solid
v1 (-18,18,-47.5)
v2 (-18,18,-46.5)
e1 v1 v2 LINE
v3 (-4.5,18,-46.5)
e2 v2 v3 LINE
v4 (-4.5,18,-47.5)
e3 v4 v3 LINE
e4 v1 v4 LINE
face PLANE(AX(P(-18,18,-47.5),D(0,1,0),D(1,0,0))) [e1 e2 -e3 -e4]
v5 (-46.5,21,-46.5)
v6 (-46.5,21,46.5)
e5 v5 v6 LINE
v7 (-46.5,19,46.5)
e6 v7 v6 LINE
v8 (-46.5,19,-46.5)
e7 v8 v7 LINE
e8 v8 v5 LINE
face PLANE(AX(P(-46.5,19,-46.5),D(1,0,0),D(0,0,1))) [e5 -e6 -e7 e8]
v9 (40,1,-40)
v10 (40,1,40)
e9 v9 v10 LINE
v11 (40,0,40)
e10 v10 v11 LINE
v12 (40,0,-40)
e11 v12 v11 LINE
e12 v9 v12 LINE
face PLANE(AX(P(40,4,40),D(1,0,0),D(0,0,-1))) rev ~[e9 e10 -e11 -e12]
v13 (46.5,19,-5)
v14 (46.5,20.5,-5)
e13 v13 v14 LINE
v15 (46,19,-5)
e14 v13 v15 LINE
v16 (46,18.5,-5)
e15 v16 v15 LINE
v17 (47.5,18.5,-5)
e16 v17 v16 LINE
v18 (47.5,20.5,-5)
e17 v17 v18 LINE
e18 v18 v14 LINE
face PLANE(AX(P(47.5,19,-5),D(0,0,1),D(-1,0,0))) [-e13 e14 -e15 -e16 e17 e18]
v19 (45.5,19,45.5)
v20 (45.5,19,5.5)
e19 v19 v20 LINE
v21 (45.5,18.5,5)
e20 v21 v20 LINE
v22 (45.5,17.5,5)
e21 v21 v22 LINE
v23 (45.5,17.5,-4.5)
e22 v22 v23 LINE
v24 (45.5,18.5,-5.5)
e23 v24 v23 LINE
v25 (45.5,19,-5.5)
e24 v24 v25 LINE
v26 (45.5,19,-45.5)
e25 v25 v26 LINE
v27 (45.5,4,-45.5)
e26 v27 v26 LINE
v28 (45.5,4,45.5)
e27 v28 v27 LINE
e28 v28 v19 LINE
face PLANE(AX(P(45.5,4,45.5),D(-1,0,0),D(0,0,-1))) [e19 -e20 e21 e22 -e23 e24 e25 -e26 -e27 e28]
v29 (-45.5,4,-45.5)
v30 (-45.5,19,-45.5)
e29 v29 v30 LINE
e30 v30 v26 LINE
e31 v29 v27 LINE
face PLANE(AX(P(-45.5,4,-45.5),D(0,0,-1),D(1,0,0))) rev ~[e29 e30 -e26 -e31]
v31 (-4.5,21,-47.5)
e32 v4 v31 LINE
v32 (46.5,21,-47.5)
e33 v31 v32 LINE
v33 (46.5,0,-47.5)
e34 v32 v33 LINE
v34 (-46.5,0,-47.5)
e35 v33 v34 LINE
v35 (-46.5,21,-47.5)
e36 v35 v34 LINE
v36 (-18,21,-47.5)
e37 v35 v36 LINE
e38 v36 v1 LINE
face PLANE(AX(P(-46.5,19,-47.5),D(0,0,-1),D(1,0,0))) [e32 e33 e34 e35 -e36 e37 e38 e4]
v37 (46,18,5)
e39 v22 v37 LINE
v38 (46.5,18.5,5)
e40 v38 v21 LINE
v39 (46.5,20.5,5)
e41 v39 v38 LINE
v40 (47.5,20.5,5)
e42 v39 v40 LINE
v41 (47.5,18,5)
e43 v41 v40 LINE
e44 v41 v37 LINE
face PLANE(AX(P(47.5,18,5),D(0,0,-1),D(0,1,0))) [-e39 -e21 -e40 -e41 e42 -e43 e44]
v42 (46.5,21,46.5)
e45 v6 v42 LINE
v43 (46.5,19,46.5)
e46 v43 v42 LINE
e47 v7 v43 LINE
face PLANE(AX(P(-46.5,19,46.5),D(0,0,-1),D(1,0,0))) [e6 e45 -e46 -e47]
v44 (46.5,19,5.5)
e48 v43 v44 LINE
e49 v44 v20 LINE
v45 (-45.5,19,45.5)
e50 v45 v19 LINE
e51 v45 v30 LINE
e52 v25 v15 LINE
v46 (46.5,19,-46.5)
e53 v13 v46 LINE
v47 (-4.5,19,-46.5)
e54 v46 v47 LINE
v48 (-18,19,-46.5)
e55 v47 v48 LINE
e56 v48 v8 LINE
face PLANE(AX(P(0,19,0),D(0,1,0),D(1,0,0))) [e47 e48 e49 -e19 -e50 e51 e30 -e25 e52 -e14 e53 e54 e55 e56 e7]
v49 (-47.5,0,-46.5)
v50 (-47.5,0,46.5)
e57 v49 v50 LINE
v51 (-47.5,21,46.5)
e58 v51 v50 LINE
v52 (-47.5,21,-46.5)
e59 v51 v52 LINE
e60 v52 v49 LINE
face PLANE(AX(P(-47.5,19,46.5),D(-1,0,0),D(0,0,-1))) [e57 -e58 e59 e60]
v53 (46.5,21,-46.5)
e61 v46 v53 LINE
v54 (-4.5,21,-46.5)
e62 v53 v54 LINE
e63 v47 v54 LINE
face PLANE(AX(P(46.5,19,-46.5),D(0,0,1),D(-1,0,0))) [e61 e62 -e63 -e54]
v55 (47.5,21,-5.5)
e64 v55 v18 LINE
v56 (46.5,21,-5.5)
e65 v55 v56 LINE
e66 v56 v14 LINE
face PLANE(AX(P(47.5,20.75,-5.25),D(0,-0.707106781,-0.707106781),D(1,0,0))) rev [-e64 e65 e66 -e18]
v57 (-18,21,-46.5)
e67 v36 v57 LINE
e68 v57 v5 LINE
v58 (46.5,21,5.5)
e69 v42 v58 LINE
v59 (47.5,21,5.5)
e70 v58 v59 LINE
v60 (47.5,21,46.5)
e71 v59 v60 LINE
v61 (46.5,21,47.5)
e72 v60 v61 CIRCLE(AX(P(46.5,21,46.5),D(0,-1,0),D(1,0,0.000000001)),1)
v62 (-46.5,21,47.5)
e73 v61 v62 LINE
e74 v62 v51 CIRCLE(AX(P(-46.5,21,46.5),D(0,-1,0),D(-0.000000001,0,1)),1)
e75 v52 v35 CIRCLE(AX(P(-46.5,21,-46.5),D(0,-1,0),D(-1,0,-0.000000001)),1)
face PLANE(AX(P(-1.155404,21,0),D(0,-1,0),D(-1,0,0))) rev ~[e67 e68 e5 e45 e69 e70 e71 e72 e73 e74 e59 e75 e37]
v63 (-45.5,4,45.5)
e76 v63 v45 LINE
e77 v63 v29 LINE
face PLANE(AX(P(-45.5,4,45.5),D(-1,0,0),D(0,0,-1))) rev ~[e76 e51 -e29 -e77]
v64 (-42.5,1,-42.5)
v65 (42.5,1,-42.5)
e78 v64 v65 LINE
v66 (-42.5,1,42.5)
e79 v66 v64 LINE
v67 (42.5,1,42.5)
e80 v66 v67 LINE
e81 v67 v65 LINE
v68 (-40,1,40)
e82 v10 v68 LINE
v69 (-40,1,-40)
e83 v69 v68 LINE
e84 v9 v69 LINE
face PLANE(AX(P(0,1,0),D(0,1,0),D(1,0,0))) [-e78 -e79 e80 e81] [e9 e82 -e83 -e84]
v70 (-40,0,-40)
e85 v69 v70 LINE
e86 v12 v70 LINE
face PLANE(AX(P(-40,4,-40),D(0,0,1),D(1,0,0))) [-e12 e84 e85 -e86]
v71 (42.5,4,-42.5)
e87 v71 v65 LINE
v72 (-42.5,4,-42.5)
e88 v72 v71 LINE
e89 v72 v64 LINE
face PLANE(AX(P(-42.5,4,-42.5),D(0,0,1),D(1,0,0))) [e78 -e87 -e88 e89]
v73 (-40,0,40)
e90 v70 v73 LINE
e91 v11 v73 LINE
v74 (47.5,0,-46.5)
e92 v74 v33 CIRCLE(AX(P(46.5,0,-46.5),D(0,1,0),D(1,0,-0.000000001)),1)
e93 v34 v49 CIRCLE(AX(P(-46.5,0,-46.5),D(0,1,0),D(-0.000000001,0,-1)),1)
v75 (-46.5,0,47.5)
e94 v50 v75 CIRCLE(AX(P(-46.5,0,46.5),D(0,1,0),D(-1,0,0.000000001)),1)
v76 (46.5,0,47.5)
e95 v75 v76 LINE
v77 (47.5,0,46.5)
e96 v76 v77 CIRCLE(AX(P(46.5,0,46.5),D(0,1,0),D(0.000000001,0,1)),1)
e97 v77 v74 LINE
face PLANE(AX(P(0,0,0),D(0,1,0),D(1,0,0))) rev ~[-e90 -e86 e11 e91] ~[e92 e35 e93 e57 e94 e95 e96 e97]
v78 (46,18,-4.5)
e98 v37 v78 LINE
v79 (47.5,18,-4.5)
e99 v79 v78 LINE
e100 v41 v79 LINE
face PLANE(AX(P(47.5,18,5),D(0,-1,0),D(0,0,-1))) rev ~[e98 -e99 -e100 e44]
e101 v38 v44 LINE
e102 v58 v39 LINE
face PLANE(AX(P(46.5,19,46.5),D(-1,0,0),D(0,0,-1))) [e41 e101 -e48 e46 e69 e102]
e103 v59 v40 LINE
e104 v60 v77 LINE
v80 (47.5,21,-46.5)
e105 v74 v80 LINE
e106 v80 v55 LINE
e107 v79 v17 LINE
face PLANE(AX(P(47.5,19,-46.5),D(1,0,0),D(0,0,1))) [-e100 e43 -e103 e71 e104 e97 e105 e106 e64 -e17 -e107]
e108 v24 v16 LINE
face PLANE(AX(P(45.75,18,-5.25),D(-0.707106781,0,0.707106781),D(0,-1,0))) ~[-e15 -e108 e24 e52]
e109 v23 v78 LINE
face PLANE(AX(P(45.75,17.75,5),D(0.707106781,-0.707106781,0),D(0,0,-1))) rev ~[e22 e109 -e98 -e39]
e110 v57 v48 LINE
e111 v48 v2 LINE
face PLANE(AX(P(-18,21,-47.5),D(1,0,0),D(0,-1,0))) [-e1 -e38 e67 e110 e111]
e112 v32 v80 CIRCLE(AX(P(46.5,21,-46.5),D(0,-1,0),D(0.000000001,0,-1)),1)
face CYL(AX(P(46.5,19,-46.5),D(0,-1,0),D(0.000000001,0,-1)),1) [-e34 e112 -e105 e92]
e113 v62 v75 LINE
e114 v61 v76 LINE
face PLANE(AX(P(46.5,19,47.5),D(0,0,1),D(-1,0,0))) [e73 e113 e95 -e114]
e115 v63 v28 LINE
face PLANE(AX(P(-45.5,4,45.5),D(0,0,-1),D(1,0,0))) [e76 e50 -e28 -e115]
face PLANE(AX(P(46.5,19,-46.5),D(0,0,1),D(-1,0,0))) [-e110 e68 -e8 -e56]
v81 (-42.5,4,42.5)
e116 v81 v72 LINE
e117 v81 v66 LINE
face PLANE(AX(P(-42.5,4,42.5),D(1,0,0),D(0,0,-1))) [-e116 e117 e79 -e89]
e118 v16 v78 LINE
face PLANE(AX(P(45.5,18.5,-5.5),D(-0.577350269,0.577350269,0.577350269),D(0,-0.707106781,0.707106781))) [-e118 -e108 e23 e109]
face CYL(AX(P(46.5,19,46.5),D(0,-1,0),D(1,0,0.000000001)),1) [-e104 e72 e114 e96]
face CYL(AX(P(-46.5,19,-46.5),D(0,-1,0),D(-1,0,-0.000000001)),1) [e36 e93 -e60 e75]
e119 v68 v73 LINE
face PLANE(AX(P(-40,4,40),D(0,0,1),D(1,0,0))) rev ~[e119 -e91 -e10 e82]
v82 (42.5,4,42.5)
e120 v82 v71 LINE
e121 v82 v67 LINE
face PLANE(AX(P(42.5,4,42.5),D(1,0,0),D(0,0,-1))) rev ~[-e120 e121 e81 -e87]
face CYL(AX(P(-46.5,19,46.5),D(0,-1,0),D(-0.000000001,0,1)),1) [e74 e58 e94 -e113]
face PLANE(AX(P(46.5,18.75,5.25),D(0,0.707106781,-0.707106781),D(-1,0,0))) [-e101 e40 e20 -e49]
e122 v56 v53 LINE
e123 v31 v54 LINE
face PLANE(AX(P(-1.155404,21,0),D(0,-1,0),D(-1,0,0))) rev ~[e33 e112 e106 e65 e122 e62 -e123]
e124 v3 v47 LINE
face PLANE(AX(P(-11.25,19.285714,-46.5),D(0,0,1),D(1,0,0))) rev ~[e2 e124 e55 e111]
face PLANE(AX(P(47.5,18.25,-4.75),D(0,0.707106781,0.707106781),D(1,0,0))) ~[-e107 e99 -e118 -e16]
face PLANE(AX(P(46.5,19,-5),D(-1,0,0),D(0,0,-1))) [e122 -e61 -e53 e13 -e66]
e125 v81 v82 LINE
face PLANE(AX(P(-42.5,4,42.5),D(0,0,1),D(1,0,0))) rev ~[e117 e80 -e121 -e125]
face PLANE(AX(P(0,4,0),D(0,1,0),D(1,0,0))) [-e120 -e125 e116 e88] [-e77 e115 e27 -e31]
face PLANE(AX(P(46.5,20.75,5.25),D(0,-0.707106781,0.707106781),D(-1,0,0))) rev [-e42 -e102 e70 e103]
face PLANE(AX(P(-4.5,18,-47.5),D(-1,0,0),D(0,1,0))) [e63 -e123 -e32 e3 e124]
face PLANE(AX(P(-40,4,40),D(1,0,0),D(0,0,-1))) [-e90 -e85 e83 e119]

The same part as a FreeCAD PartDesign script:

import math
import FreeCAD as App
import Part
import Sketcher
from FreeCAD import Vector


def edges_at(feature, points):
    """Names of the edges that pass closest to the given points."""
    edges = feature.Shape.Edges
    near = lambda p: min(range(len(edges)), key=lambda i: edges[i].distToShape(Part.Vertex(*p))[0])
    return sorted({f"Edge{near(p) + 1}" for p in points})

doc = App.newDocument("Part")
params = doc.addObject("Spreadsheet::Sheet", "Params")
for row, (alias, value) in enumerate([
    ("sketch1_radius", "1 mm"),
    ("sketch1_width", "93 mm"),
    ("pad1_length", "4 mm"),
    ("sketch2_radius", "1 mm"),
    ("sketch2_width", "93 mm"),
    ("sketch2_width2", "91 mm"),
    ("pad2_length", "15 mm"),
    ("sketch3_width", "80 mm"),
    ("sketch4_width", "1 mm"),
    ("sketch4_height", "10 mm"),
    ("sketch5_width", "85 mm"),
    ("pocket3_length", "3 mm"),
    ("sketch6_radius", "1 mm"),
    ("sketch6_width", "93 mm"),
    ("sketch6_height", "41.5 mm"),
    ("pad3_length", "2 mm"),
    ("chamfer_size", "0.5 mm"),
    ("sketch7_height", "1 mm"),
    ("sketch7_width", "9.5 mm"),
    ("sketch8_width", "2 mm"),
    ("sketch8_height", "1 mm"),
    ("sketch8_height2", "3 mm"),
    ("sketch8_width2", "9.5 mm"),
    ("pocket5_length", "1 mm"),
], start=1):
    params.set(f"A{row}", alias)
    params.set(f"B{row}", "=" + value)
    params.setAlias(f"B{row}", alias)

body = doc.addObject("PartDesign::Body", "Body")

# Sketch on XZ plane
sketch1 = doc.addObject("Sketcher::SketchObject", "Sketch")
body.addObject(sketch1)
sketch1.AttachmentSupport = (doc.XZ_Plane, [""])
sketch1.MapMode = "FlatFace"
sketch1.addGeometry(Part.LineSegment(Vector(-46.5, 47.5, 0), Vector(46.5, 47.5, 0)), False)
sketch1.addGeometry(Part.ArcOfCircle(Part.Circle(Vector(46.5, 46.5, 0), Vector(0, 0, 1), 1), math.radians(0), math.radians(90)), False)
sketch1.addGeometry(Part.LineSegment(Vector(47.5, 46.5, 0), Vector(47.5, -46.5, 0)), False)
sketch1.addGeometry(Part.ArcOfCircle(Part.Circle(Vector(46.5, -46.5, 0), Vector(0, 0, 1), 1), math.radians(-90), math.radians(0)), False)
sketch1.addGeometry(Part.LineSegment(Vector(46.5, -47.5, 0), Vector(-46.5, -47.5, 0)), False)
sketch1.addGeometry(Part.ArcOfCircle(Part.Circle(Vector(-46.5, -46.5, 0), Vector(0, 0, 1), 1), math.radians(-180), math.radians(-90)), False)
sketch1.addGeometry(Part.LineSegment(Vector(-47.5, -46.5, 0), Vector(-47.5, 46.5, 0)), False)
sketch1.addGeometry(Part.ArcOfCircle(Part.Circle(Vector(-46.5, 46.5, 0), Vector(0, 0, 1), 1), math.radians(90), math.radians(180)), False)
sketch1.addConstraint(Sketcher.Constraint("Tangent", 0, 2, 1, 2))
sketch1.addConstraint(Sketcher.Constraint("Tangent", 1, 1, 2, 1))
sketch1.addConstraint(Sketcher.Constraint("Tangent", 2, 2, 3, 2))
sketch1.addConstraint(Sketcher.Constraint("Tangent", 3, 1, 4, 1))
sketch1.addConstraint(Sketcher.Constraint("Tangent", 4, 2, 5, 2))
sketch1.addConstraint(Sketcher.Constraint("Tangent", 5, 1, 6, 1))
sketch1.addConstraint(Sketcher.Constraint("Tangent", 6, 2, 7, 2))
sketch1.addConstraint(Sketcher.Constraint("Tangent", 7, 1, 0, 1))
sketch1.addConstraint(Sketcher.Constraint("Horizontal", 0))
sketch1.addConstraint(Sketcher.Constraint("Vertical", 2))
sketch1.addConstraint(Sketcher.Constraint("Horizontal", 4))
sketch1.addConstraint(Sketcher.Constraint("Vertical", 6))
sketch1.addConstraint(Sketcher.Constraint("Equal", 1, 3))
sketch1.addConstraint(Sketcher.Constraint("Equal", 3, 5))
sketch1.addConstraint(Sketcher.Constraint("Equal", 5, 7))
sketch1.addConstraint(Sketcher.Constraint("Symmetric", 1, 3, 5, 3, -1, 1))
sketch1.addConstraint(Sketcher.Constraint("Equal", 4, 2))
sketch1.addConstraint(Sketcher.Constraint("Radius", 1, 1.0))
sketch1.addConstraint(Sketcher.Constraint("DistanceX", 0, 1, 0, 2, 93.0))
sketch1.setExpression("Constraints[17]", "Params.sketch1_radius")
sketch1.setExpression("Constraints[18]", "Params.sketch1_width")
pad1 = doc.addObject("PartDesign::Pad", "Pad")
body.addObject(pad1)
pad1.Profile = sketch1
pad1.setExpression("Length", "Params.pad1_length")
pad1.Reversed = True

# Sketch on XZ plane
sketch2 = doc.addObject("Sketcher::SketchObject", "Sketch001")
body.addObject(sketch2)
sketch2.AttachmentSupport = (doc.XZ_Plane, [""])
sketch2.MapMode = "FlatFace"
sketch2.AttachmentOffset = App.Placement(Vector(0, 0, -4), App.Rotation())
sketch2.addGeometry(Part.LineSegment(Vector(47.5, 46.5, 0), Vector(47.5, -46.5, 0)), False)
sketch2.addGeometry(Part.ArcOfCircle(Part.Circle(Vector(46.5, -46.5, 0), Vector(0, 0, 1), 1), math.radians(-90), math.radians(0)), False)
sketch2.addGeometry(Part.LineSegment(Vector(46.5, -47.5, 0), Vector(-46.5, -47.5, 0)), False)
sketch2.addGeometry(Part.ArcOfCircle(Part.Circle(Vector(-46.5, -46.5, 0), Vector(0, 0, 1), 1), math.radians(-180), math.radians(-90)), False)
sketch2.addGeometry(Part.LineSegment(Vector(-47.5, -46.5, 0), Vector(-47.5, 46.5, 0)), False)
sketch2.addGeometry(Part.ArcOfCircle(Part.Circle(Vector(-46.5, 46.5, 0), Vector(0, 0, 1), 1), math.radians(90), math.radians(180)), False)
sketch2.addGeometry(Part.LineSegment(Vector(-46.5, 47.5, 0), Vector(46.5, 47.5, 0)), False)
sketch2.addGeometry(Part.ArcOfCircle(Part.Circle(Vector(46.5, 46.5, 0), Vector(0, 0, 1), 1), math.radians(0), math.radians(90)), False)
sketch2.addGeometry(Part.LineSegment(Vector(45.5, 45.5, 0), Vector(-45.5, 45.5, 0)), False)
sketch2.addGeometry(Part.LineSegment(Vector(-45.5, 45.5, 0), Vector(-45.5, -45.5, 0)), False)
sketch2.addGeometry(Part.LineSegment(Vector(-45.5, -45.5, 0), Vector(45.5, -45.5, 0)), False)
sketch2.addGeometry(Part.LineSegment(Vector(45.5, -45.5, 0), Vector(45.5, 45.5, 0)), False)
sketch2.addConstraint(Sketcher.Constraint("Tangent", 0, 2, 1, 2))
sketch2.addConstraint(Sketcher.Constraint("Tangent", 1, 1, 2, 1))
sketch2.addConstraint(Sketcher.Constraint("Tangent", 2, 2, 3, 2))
sketch2.addConstraint(Sketcher.Constraint("Tangent", 3, 1, 4, 1))
sketch2.addConstraint(Sketcher.Constraint("Tangent", 4, 2, 5, 2))
sketch2.addConstraint(Sketcher.Constraint("Tangent", 5, 1, 6, 1))
sketch2.addConstraint(Sketcher.Constraint("Tangent", 6, 2, 7, 2))
sketch2.addConstraint(Sketcher.Constraint("Tangent", 7, 1, 0, 1))
sketch2.addConstraint(Sketcher.Constraint("Coincident", 8, 2, 9, 1))
sketch2.addConstraint(Sketcher.Constraint("Coincident", 9, 2, 10, 1))
sketch2.addConstraint(Sketcher.Constraint("Coincident", 10, 2, 11, 1))
sketch2.addConstraint(Sketcher.Constraint("Coincident", 11, 2, 8, 1))
sketch2.addConstraint(Sketcher.Constraint("Vertical", 0))
sketch2.addConstraint(Sketcher.Constraint("Horizontal", 2))
sketch2.addConstraint(Sketcher.Constraint("Vertical", 4))
sketch2.addConstraint(Sketcher.Constraint("Horizontal", 6))
sketch2.addConstraint(Sketcher.Constraint("Horizontal", 8))
sketch2.addConstraint(Sketcher.Constraint("Vertical", 9))
sketch2.addConstraint(Sketcher.Constraint("Horizontal", 10))
sketch2.addConstraint(Sketcher.Constraint("Vertical", 11))
sketch2.addConstraint(Sketcher.Constraint("Equal", 1, 3))
sketch2.addConstraint(Sketcher.Constraint("Equal", 3, 5))
sketch2.addConstraint(Sketcher.Constraint("Equal", 5, 7))
sketch2.addConstraint(Sketcher.Constraint("Symmetric", 1, 3, 5, 3, -1, 1))
sketch2.addConstraint(Sketcher.Constraint("Symmetric", 8, 2, 10, 2, -1, 1))
sketch2.addConstraint(Sketcher.Constraint("Equal", 6, 0))
sketch2.addConstraint(Sketcher.Constraint("Equal", 10, 9))
sketch2.addConstraint(Sketcher.Constraint("Radius", 1, 1.0))
sketch2.addConstraint(Sketcher.Constraint("DistanceX", 2, 2, 2, 1, 93.0))
sketch2.addConstraint(Sketcher.Constraint("DistanceX", 8, 2, 8, 1, 91.0))
sketch2.setExpression("Constraints[27]", "Params.sketch2_radius")
sketch2.setExpression("Constraints[28]", "Params.sketch2_width")
sketch2.setExpression("Constraints[29]", "Params.sketch2_width2")
pad2 = doc.addObject("PartDesign::Pad", "Pad001")
body.addObject(pad2)
pad2.Profile = sketch2
pad2.setExpression("Length", "Params.pad2_length")
pad2.Reversed = True

# Sketch on XZ plane
sketch3 = doc.addObject("Sketcher::SketchObject", "Sketch002")
body.addObject(sketch3)
sketch3.AttachmentSupport = (doc.XZ_Plane, [""])
sketch3.MapMode = "FlatFace"
sketch3.AttachmentOffset = App.Placement(Vector(0, 0, -4), App.Rotation())
sketch3.addGeometry(Part.LineSegment(Vector(-40, -40, 0), Vector(-40, 40, 0)), False)
sketch3.addGeometry(Part.LineSegment(Vector(-40, 40, 0), Vector(40, 40, 0)), False)
sketch3.addGeometry(Part.LineSegment(Vector(40, 40, 0), Vector(40, -40, 0)), False)
sketch3.addGeometry(Part.LineSegment(Vector(40, -40, 0), Vector(-40, -40, 0)), False)
sketch3.addConstraint(Sketcher.Constraint("Coincident", 0, 2, 1, 1))
sketch3.addConstraint(Sketcher.Constraint("Coincident", 1, 2, 2, 1))
sketch3.addConstraint(Sketcher.Constraint("Coincident", 2, 2, 3, 1))
sketch3.addConstraint(Sketcher.Constraint("Coincident", 3, 2, 0, 1))
sketch3.addConstraint(Sketcher.Constraint("Vertical", 0))
sketch3.addConstraint(Sketcher.Constraint("Horizontal", 1))
sketch3.addConstraint(Sketcher.Constraint("Vertical", 2))
sketch3.addConstraint(Sketcher.Constraint("Horizontal", 3))
sketch3.addConstraint(Sketcher.Constraint("Symmetric", 0, 2, 2, 2, -1, 1))
sketch3.addConstraint(Sketcher.Constraint("Equal", 3, 0))
sketch3.addConstraint(Sketcher.Constraint("DistanceX", 1, 1, 1, 2, 80.0))
sketch3.setExpression("Constraints[10]", "Params.sketch3_width")
pocket1 = doc.addObject("PartDesign::Pocket", "Pocket")
body.addObject(pocket1)
pocket1.Profile = sketch3
pocket1.Type = "UpToFirst"
pocket1.Reversed = True

# Sketch on YZ plane
sketch4 = doc.addObject("Sketcher::SketchObject", "Sketch003")
body.addObject(sketch4)
sketch4.AttachmentSupport = (doc.YZ_Plane, [""])
sketch4.MapMode = "FlatFace"
sketch4.AttachmentOffset = App.Placement(Vector(0, 0, 47.5), App.Rotation())
sketch4.addGeometry(Part.LineSegment(Vector(19, 5, 0), Vector(18, 5, 0)), False)
sketch4.addGeometry(Part.LineSegment(Vector(18, 5, 0), Vector(18, -5, 0)), False)
sketch4.addGeometry(Part.LineSegment(Vector(18, -5, 0), Vector(19, -5, 0)), False)
sketch4.addGeometry(Part.LineSegment(Vector(19, -5, 0), Vector(19, 5, 0)), False)
sketch4.addConstraint(Sketcher.Constraint("Coincident", 0, 2, 1, 1))
sketch4.addConstraint(Sketcher.Constraint("Coincident", 1, 2, 2, 1))
sketch4.addConstraint(Sketcher.Constraint("Coincident", 2, 2, 3, 1))
sketch4.addConstraint(Sketcher.Constraint("Coincident", 3, 2, 0, 1))
sketch4.addConstraint(Sketcher.Constraint("Horizontal", 0))
sketch4.addConstraint(Sketcher.Constraint("Vertical", 1))
sketch4.addConstraint(Sketcher.Constraint("Horizontal", 2))
sketch4.addConstraint(Sketcher.Constraint("Vertical", 3))
sketch4.addConstraint(Sketcher.Constraint("DistanceX", 0, 2, 0, 1, 1.0))
sketch4.addConstraint(Sketcher.Constraint("DistanceY", 1, 2, 1, 1, 10.0))
sketch4.addConstraint(Sketcher.Constraint("DistanceX", -1, 1, 0, 2, 18.0))
sketch4.addConstraint(Sketcher.Constraint("DistanceY", -1, 1, 0, 2, 5.0))
sketch4.setExpression("Constraints[8]", "Params.sketch4_width")
sketch4.setExpression("Constraints[9]", "Params.sketch4_height")
pocket2 = doc.addObject("PartDesign::Pocket", "Pocket001")
body.addObject(pocket2)
pocket2.Profile = sketch4
pocket2.Type = "UpToFirst"

# Sketch on XZ plane
sketch5 = doc.addObject("Sketcher::SketchObject", "Sketch004")
body.addObject(sketch5)
sketch5.AttachmentSupport = (doc.XZ_Plane, [""])
sketch5.MapMode = "FlatFace"
sketch5.AttachmentOffset = App.Placement(Vector(0, 0, -4), App.Rotation())
sketch5.addGeometry(Part.LineSegment(Vector(-42, -42, 0), Vector(-42, 42, 0)), False)
sketch5.addGeometry(Part.LineSegment(Vector(-42, 42, 0), Vector(42, 42, 0)), False)
sketch5.addGeometry(Part.LineSegment(Vector(42, 42, 0), Vector(42, -42, 0)), False)
sketch5.addGeometry(Part.LineSegment(Vector(42, -42, 0), Vector(-42, -42, 0)), False)
sketch5.addConstraint(Sketcher.Constraint("Coincident", 0, 2, 1, 1))
sketch5.addConstraint(Sketcher.Constraint("Coincident", 1, 2, 2, 1))
sketch5.addConstraint(Sketcher.Constraint("Coincident", 2, 2, 3, 1))
sketch5.addConstraint(Sketcher.Constraint("Coincident", 3, 2, 0, 1))
sketch5.addConstraint(Sketcher.Constraint("Vertical", 0))
sketch5.addConstraint(Sketcher.Constraint("Horizontal", 1))
sketch5.addConstraint(Sketcher.Constraint("Vertical", 2))
sketch5.addConstraint(Sketcher.Constraint("Horizontal", 3))
sketch5.addConstraint(Sketcher.Constraint("Symmetric", 0, 2, 2, 2, -1, 1))
sketch5.addConstraint(Sketcher.Constraint("Equal", 3, 0))
sketch5.addConstraint(Sketcher.Constraint("DistanceX", 1, 1, 1, 2, 85.0))
sketch5.setExpression("Constraints[10]", "Params.sketch5_width")
pocket3 = doc.addObject("PartDesign::Pocket", "Pocket002")
body.addObject(pocket3)
pocket3.Profile = sketch5
pocket3.setExpression("Length", "Params.pocket3_length")
pocket3.Reversed = True

# Sketch on XZ plane
sketch6 = doc.addObject("Sketcher::SketchObject", "Sketch005")
body.addObject(sketch6)
sketch6.AttachmentSupport = (doc.XZ_Plane, [""])
sketch6.MapMode = "FlatFace"
sketch6.AttachmentOffset = App.Placement(Vector(0, 0, -19), App.Rotation())
sketch6.addGeometry(Part.LineSegment(Vector(46.5, -46.5, 0), Vector(46.5, -5, 0)), False)
sketch6.addGeometry(Part.LineSegment(Vector(46.5, -5, 0), Vector(47.5, -5, 0)), False)
sketch6.addGeometry(Part.LineSegment(Vector(47.5, -5, 0), Vector(47.5, -46.5, 0)), False)
sketch6.addGeometry(Part.ArcOfCircle(Part.Circle(Vector(46.5, -46.5, 0), Vector(0, 0, 1), 1), math.radians(-90), math.radians(0)), False)
sketch6.addGeometry(Part.LineSegment(Vector(46.5, -47.5, 0), Vector(-46.5, -47.5, 0)), False)
sketch6.addGeometry(Part.ArcOfCircle(Part.Circle(Vector(-46.5, -46.5, 0), Vector(0, 0, 1), 1), math.radians(-180), math.radians(-90)), False)
sketch6.addGeometry(Part.LineSegment(Vector(-47.5, -46.5, 0), Vector(-47.5, 46.5, 0)), False)
sketch6.addGeometry(Part.ArcOfCircle(Part.Circle(Vector(-46.5, 46.5, 0), Vector(0, 0, 1), 1), math.radians(90), math.radians(180)), False)
sketch6.addGeometry(Part.LineSegment(Vector(-46.5, 47.5, 0), Vector(46.5, 47.5, 0)), False)
sketch6.addGeometry(Part.ArcOfCircle(Part.Circle(Vector(46.5, 46.5, 0), Vector(0, 0, 1), 1), math.radians(0), math.radians(90)), False)
sketch6.addGeometry(Part.LineSegment(Vector(47.5, 46.5, 0), Vector(47.5, 5, 0)), False)
sketch6.addGeometry(Part.LineSegment(Vector(47.5, 5, 0), Vector(46.5, 5, 0)), False)
sketch6.addGeometry(Part.LineSegment(Vector(46.5, 5, 0), Vector(46.5, 46.5, 0)), False)
sketch6.addGeometry(Part.LineSegment(Vector(46.5, 46.5, 0), Vector(-46.5, 46.5, 0)), False)
sketch6.addGeometry(Part.LineSegment(Vector(-46.5, 46.5, 0), Vector(-46.5, -46.5, 0)), False)
sketch6.addGeometry(Part.LineSegment(Vector(-46.5, -46.5, 0), Vector(46.5, -46.5, 0)), False)
sketch6.addConstraint(Sketcher.Constraint("Coincident", 0, 2, 1, 1))
sketch6.addConstraint(Sketcher.Constraint("Coincident", 1, 2, 2, 1))
sketch6.addConstraint(Sketcher.Constraint("Tangent", 2, 2, 3, 2))
sketch6.addConstraint(Sketcher.Constraint("Tangent", 3, 1, 4, 1))
sketch6.addConstraint(Sketcher.Constraint("Tangent", 4, 2, 5, 2))
sketch6.addConstraint(Sketcher.Constraint("Tangent", 5, 1, 6, 1))
sketch6.addConstraint(Sketcher.Constraint("Tangent", 6, 2, 7, 2))
sketch6.addConstraint(Sketcher.Constraint("Tangent", 7, 1, 8, 1))
sketch6.addConstraint(Sketcher.Constraint("Tangent", 8, 2, 9, 2))
sketch6.addConstraint(Sketcher.Constraint("Tangent", 9, 1, 10, 1))
sketch6.addConstraint(Sketcher.Constraint("Coincident", 10, 2, 11, 1))
sketch6.addConstraint(Sketcher.Constraint("Coincident", 11, 2, 12, 1))
sketch6.addConstraint(Sketcher.Constraint("Coincident", 12, 2, 13, 1))
sketch6.addConstraint(Sketcher.Constraint("Coincident", 13, 2, 14, 1))
sketch6.addConstraint(Sketcher.Constraint("Coincident", 14, 2, 15, 1))
sketch6.addConstraint(Sketcher.Constraint("Coincident", 15, 2, 0, 1))
sketch6.addConstraint(Sketcher.Constraint("Vertical", 0))
sketch6.addConstraint(Sketcher.Constraint("Horizontal", 1))
sketch6.addConstraint(Sketcher.Constraint("Vertical", 2))
sketch6.addConstraint(Sketcher.Constraint("Horizontal", 4))
sketch6.addConstraint(Sketcher.Constraint("Vertical", 6))
sketch6.addConstraint(Sketcher.Constraint("Horizontal", 8))
sketch6.addConstraint(Sketcher.Constraint("Vertical", 10))
sketch6.addConstraint(Sketcher.Constraint("Horizontal", 11))
sketch6.addConstraint(Sketcher.Constraint("Vertical", 12))
sketch6.addConstraint(Sketcher.Constraint("Horizontal", 13))
sketch6.addConstraint(Sketcher.Constraint("Vertical", 14))
sketch6.addConstraint(Sketcher.Constraint("Horizontal", 15))
sketch6.addConstraint(Sketcher.Constraint("Coincident", 12, 2, 9, 3))
sketch6.addConstraint(Sketcher.Constraint("Coincident", 13, 2, 7, 3))
sketch6.addConstraint(Sketcher.Constraint("Coincident", 14, 2, 5, 3))
sketch6.addConstraint(Sketcher.Constraint("Coincident", 15, 2, 3, 3))
sketch6.addConstraint(Sketcher.Constraint("Symmetric", 3, 3, 7, 3, -1, 1))
sketch6.addConstraint(Sketcher.Constraint("Symmetric", 1, 2, 10, 2, -1))
sketch6.addConstraint(Sketcher.Constraint("Equal", 15, 6))
sketch6.addConstraint(Sketcher.Constraint("Radius", 3, 1.0))
sketch6.addConstraint(Sketcher.Constraint("DistanceX", 4, 2, 4, 1, 93.0))
sketch6.addConstraint(Sketcher.Constraint("DistanceY", 0, 1, 0, 2, 41.5))
sketch6.setExpression("Constraints[35]", "Params.sketch6_radius")
sketch6.setExpression("Constraints[36]", "Params.sketch6_width")
sketch6.setExpression("Constraints[37]", "Params.sketch6_height")
pad3 = doc.addObject("PartDesign::Pad", "Pad002")
body.addObject(pad3)
pad3.Profile = sketch6
pad3.setExpression("Length", "Params.pad3_length")
pad3.Reversed = True
doc.recompute()

chamfer = doc.addObject("PartDesign::Chamfer", "Chamfer")
body.addObject(chamfer)
chamfer.Base = (pad3, edges_at(pad3, [
    (47, 21, 5),
    (47, 21, -5),
    (45.5, 18.5, -5),
    (45.5, 18, 0),
    (46.5, 18, -5),
    (46, 19, 5),
]))
chamfer.setExpression("Size", "Params.chamfer_size")

# Sketch on XY plane
sketch7 = doc.addObject("Sketcher::SketchObject", "Sketch006")
body.addObject(sketch7)
sketch7.AttachmentSupport = (doc.XY_Plane, [""])
sketch7.MapMode = "FlatFace"
sketch7.AttachmentOffset = App.Placement(Vector(0, 0, -47.5), App.Rotation())
sketch7.addGeometry(Part.LineSegment(Vector(-6.5, 21, 0), Vector(-6.5, 20, 0)), False)
sketch7.addGeometry(Part.LineSegment(Vector(-6.5, 20, 0), Vector(-16, 20, 0)), False)
sketch7.addGeometry(Part.LineSegment(Vector(-16, 20, 0), Vector(-16, 21, 0)), False)
sketch7.addGeometry(Part.LineSegment(Vector(-16, 21, 0), Vector(-6.5, 21, 0)), False)
sketch7.addConstraint(Sketcher.Constraint("Coincident", 0, 2, 1, 1))
sketch7.addConstraint(Sketcher.Constraint("Coincident", 1, 2, 2, 1))
sketch7.addConstraint(Sketcher.Constraint("Coincident", 2, 2, 3, 1))
sketch7.addConstraint(Sketcher.Constraint("Coincident", 3, 2, 0, 1))
sketch7.addConstraint(Sketcher.Constraint("Vertical", 0))
sketch7.addConstraint(Sketcher.Constraint("Horizontal", 1))
sketch7.addConstraint(Sketcher.Constraint("Vertical", 2))
sketch7.addConstraint(Sketcher.Constraint("Horizontal", 3))
sketch7.addConstraint(Sketcher.Constraint("DistanceY", 0, 2, 0, 1, 1.0))
sketch7.addConstraint(Sketcher.Constraint("DistanceX", 1, 2, 1, 1, 9.5))
sketch7.addConstraint(Sketcher.Constraint("DistanceY", -1, 1, 0, 2, 20.0))
sketch7.addConstraint(Sketcher.Constraint("DistanceX", 1, 2, -1, 1, 16.0))
sketch7.setExpression("Constraints[8]", "Params.sketch7_height")
sketch7.setExpression("Constraints[9]", "Params.sketch7_width")
pocket4 = doc.addObject("PartDesign::Pocket", "Pocket003")
body.addObject(pocket4)
pocket4.Profile = sketch7
pocket4.Type = "UpToFirst"
pocket4.Reversed = True

# Sketch on XY plane
sketch8 = doc.addObject("Sketcher::SketchObject", "Sketch007")
body.addObject(sketch8)
sketch8.AttachmentSupport = (doc.XY_Plane, [""])
sketch8.MapMode = "FlatFace"
sketch8.AttachmentOffset = App.Placement(Vector(0, 0, -47.5), App.Rotation())
sketch8.addGeometry(Part.LineSegment(Vector(-16, 21, 0), Vector(-16, 20, 0)), False)
sketch8.addGeometry(Part.LineSegment(Vector(-16, 20, 0), Vector(-6.5, 20, 0)), False)
sketch8.addGeometry(Part.LineSegment(Vector(-6.5, 20, 0), Vector(-6.5, 21, 0)), False)
sketch8.addGeometry(Part.LineSegment(Vector(-6.5, 21, 0), Vector(-4.5, 21, 0)), False)
sketch8.addGeometry(Part.LineSegment(Vector(-4.5, 21, 0), Vector(-4.5, 18, 0)), False)
sketch8.addGeometry(Part.LineSegment(Vector(-4.5, 18, 0), Vector(-18, 18, 0)), False)
sketch8.addGeometry(Part.LineSegment(Vector(-18, 18, 0), Vector(-18, 21, 0)), False)
sketch8.addGeometry(Part.LineSegment(Vector(-18, 21, 0), Vector(-16, 21, 0)), False)
sketch8.addConstraint(Sketcher.Constraint("Coincident", 0, 2, 1, 1))
sketch8.addConstraint(Sketcher.Constraint("Coincident", 1, 2, 2, 1))
sketch8.addConstraint(Sketcher.Constraint("Coincident", 2, 2, 3, 1))
sketch8.addConstraint(Sketcher.Constraint("Coincident", 3, 2, 4, 1))
sketch8.addConstraint(Sketcher.Constraint("Coincident", 4, 2, 5, 1))
sketch8.addConstraint(Sketcher.Constraint("Coincident", 5, 2, 6, 1))
sketch8.addConstraint(Sketcher.Constraint("Coincident", 6, 2, 7, 1))
sketch8.addConstraint(Sketcher.Constraint("Coincident", 7, 2, 0, 1))
sketch8.addConstraint(Sketcher.Constraint("Vertical", 0))
sketch8.addConstraint(Sketcher.Constraint("Horizontal", 1))
sketch8.addConstraint(Sketcher.Constraint("Vertical", 2))
sketch8.addConstraint(Sketcher.Constraint("Horizontal", 3))
sketch8.addConstraint(Sketcher.Constraint("Vertical", 4))
sketch8.addConstraint(Sketcher.Constraint("Horizontal", 5))
sketch8.addConstraint(Sketcher.Constraint("Vertical", 6))
sketch8.addConstraint(Sketcher.Constraint("Horizontal", 7))
sketch8.addConstraint(Sketcher.Constraint("Horizontal", 3, 2, 6, 2))
sketch8.addConstraint(Sketcher.Constraint("Equal", 3, 7))
sketch8.addConstraint(Sketcher.Constraint("DistanceX", 3, 1, 3, 2, 2.0))
sketch8.addConstraint(Sketcher.Constraint("DistanceY", 0, 2, 0, 1, 1.0))
sketch8.addConstraint(Sketcher.Constraint("DistanceY", 4, 2, 4, 1, 3.0))
sketch8.addConstraint(Sketcher.Constraint("DistanceX", 1, 1, 1, 2, 9.5))
sketch8.addConstraint(Sketcher.Constraint("DistanceX", 0, 2, -1, 1, 16.0))
sketch8.addConstraint(Sketcher.Constraint("DistanceY", -1, 1, 0, 2, 20.0))
sketch8.setExpression("Constraints[18]", "Params.sketch8_width")
sketch8.setExpression("Constraints[19]", "Params.sketch8_height")
sketch8.setExpression("Constraints[20]", "Params.sketch8_height2")
sketch8.setExpression("Constraints[21]", "Params.sketch8_width2")
pocket5 = doc.addObject("PartDesign::Pocket", "Pocket004")
body.addObject(pocket5)
pocket5.Profile = sketch8
pocket5.setExpression("Length", "Params.pocket5_length")
pocket5.Reversed = True

doc.recompute()
